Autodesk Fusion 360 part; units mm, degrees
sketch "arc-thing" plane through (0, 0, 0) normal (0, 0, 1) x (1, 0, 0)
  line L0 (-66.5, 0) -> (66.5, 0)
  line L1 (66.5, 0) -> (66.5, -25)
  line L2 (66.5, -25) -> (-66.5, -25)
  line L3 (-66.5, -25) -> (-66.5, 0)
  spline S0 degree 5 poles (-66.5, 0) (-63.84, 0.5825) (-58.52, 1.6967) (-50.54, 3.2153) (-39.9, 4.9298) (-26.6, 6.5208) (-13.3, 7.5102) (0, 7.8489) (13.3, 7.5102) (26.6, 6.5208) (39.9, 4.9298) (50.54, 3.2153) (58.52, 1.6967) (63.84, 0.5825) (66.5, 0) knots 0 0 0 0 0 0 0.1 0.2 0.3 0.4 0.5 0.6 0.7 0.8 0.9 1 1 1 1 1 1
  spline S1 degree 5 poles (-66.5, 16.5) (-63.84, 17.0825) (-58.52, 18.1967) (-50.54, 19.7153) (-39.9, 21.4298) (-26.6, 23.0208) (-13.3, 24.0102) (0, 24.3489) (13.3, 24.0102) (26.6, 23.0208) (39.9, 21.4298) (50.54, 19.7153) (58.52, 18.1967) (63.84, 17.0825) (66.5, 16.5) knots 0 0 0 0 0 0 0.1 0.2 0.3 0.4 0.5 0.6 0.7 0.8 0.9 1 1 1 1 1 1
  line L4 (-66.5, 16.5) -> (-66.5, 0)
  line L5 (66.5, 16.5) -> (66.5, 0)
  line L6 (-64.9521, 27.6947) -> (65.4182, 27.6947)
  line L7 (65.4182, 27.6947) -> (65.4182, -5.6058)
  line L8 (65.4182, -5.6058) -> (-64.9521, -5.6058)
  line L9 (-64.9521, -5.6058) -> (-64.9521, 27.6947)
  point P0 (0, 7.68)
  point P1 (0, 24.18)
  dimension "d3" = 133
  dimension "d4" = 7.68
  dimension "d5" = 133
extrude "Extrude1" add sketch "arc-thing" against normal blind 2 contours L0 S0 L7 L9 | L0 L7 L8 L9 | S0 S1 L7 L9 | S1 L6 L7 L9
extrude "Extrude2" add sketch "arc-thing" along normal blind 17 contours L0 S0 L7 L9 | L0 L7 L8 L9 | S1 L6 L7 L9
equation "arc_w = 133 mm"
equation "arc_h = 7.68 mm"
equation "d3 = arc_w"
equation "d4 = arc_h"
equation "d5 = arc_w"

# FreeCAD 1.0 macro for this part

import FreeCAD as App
import Part
import Sketcher

V = App.Vector
Q = App.Units.Quantity


def add_polygon(sketch, points):
    """Adds a closed chain of lines whose ends are joined by coincident constraints."""
    first, n = sketch.GeometryCount, len(points)
    for a, b in zip(points, points[1:] + points[:1]):
        sketch.addGeometry(Part.LineSegment(App.Vector(*a, 0), App.Vector(*b, 0)), False)
    for i in range(n):
        sketch.addConstraint(Sketcher.Constraint("Coincident", first + i, 2, first + (i + 1) % n, 1))

doc = App.newDocument("Part")
params = doc.addObject("Spreadsheet::Sheet", "Params")
for row, (alias, value) in enumerate([
    ("pad1_length", "2 mm"),
    ("pad2_length", "17 mm"),
], start=1):
    params.set(f"A{row}", alias)
    params.set(f"B{row}", "=" + value)
    params.setAlias(f"B{row}", alias)

body = doc.addObject("PartDesign::Body", "Body")

# Sketch on XY plane
sketch1 = body.newObject("Sketcher::SketchObject", "Sketch")
sketch1.AttachmentSupport = (doc.getObject("XY_Plane"), [""])
sketch1.MapMode = "FlatFace"
add_polygon(sketch1, [(-65, -6), (65, -6), (65, 28), (-65, 28)])  # lines 0-3
sketch1.addConstraint([
    Sketcher.Constraint("Horizontal", 0),
    Sketcher.Constraint("Vertical", 1),
    Sketcher.Constraint("Horizontal", 2),
    Sketcher.Constraint("Vertical", 3),
    Sketcher.Constraint("DistanceX", 0, 1, 0, 2, Q("130.3703 mm")),
    Sketcher.Constraint("DistanceY", 1, 1, 1, 2, Q("33.3005 mm")),
    Sketcher.Constraint("DistanceX", 2, 2, -1, 1, Q("64.952 mm")),
    Sketcher.Constraint("DistanceY", 0, 2, -1, 1, Q("5.6058 mm")),
])
pad1 = body.newObject("PartDesign::Pad", "Pad")
pad1.Profile = sketch1
pad1.setExpression("Length", "Params.pad1_length")
pad1.Reversed = True

# Sketch on XY plane
sketch2 = body.newObject("Sketcher::SketchObject", "Sketch001")
sketch2.AttachmentSupport = (doc.getObject("XY_Plane"), [""])
sketch2.MapMode = "FlatFace"
sketch2.addGeometry([
    Part.LineSegment(V(-64.9521, 0.335525, 0), V(-64.9521, -5.6058, 0)),  # 0
    Part.LineSegment(V(-64.9521, -5.6058, 0), V(65.4182, -5.6058, 0)),  # 1
    Part.LineSegment(V(65.4182, -5.6058, 0), V(65.4182, 0.235217, 0)),  # 2
    Part.BSplineCurve([V(-64.9521, 0.335525, 0), V(-62.60168, 0.839779, 0), V(-57.59126, 1.872388, 0), V(-49.92084, 3.314696, 0), V(-39.59042, 4.966833, 0), V(-26.6, 6.5208, 0), V(-13.3, 7.5102, 0), V(0, 7.8489, 0), V(13.3, 7.5102, 0), V(26.6, 6.5208, 0), V(39.68364, 4.955682, 0), V(50.10728, 3.284845, 0), V(57.87092, 1.819707, 0), V(62.97456, 0.762744, 0), V(65.4182, 0.235217, 0)], [6, 1, 1, 1, 1, 1, 1, 1, 1, 1, 6], [0.011638346, 0.1, 0.2, 0.3, 0.4, 0.5, 0.6, 0.7, 0.8, 0.9, 0.991866165], False, 5, [1, 1, 1, 1, 1, 1, 1, 1, 1, 1, 1, 1, 1, 1, 1], False),  # 3
    Part.LineSegment(V(-64.9521, 27.6947, 0), V(-64.9521, 16.835525, 0)),  # 4
    Part.BSplineCurve([V(-64.9521, 16.835525, 0), V(-62.60168, 17.339779, 0), V(-57.59126, 18.372388, 0), V(-49.92084, 19.814696, 0), V(-39.59042, 21.466833, 0), V(-26.6, 23.0208, 0), V(-13.3, 24.0102, 0), V(0, 24.3489, 0), V(13.3, 24.0102, 0), V(26.6, 23.0208, 0), V(39.68364, 21.455682, 0), V(50.10728, 19.784845, 0), V(57.87092, 18.319707, 0), V(62.97456, 17.262744, 0), V(65.4182, 16.735217, 0)], [6, 1, 1, 1, 1, 1, 1, 1, 1, 1, 6], [0.011638346, 0.1, 0.2, 0.3, 0.4, 0.5, 0.6, 0.7, 0.8, 0.9, 0.991866165], False, 5, [1, 1, 1, 1, 1, 1, 1, 1, 1, 1, 1, 1, 1, 1, 1], False),  # 5
    Part.LineSegment(V(65.4182, 16.735217, 0), V(65.4182, 27.6947, 0)),  # 6
    Part.LineSegment(V(65.4182, 27.6947, 0), V(-64.9521, 27.6947, 0)),  # 7
], False)
sketch2.addConstraint([
    Sketcher.Constraint("Block", 3),
    Sketcher.Constraint("Block", 5),
    Sketcher.Constraint("Coincident", 0, 2, 1, 1),
    Sketcher.Constraint("Coincident", 1, 2, 2, 1),
    Sketcher.Constraint("Coincident", 2, 2, 3, 2),
    Sketcher.Constraint("Coincident", 3, 1, 0, 1),
    Sketcher.Constraint("Coincident", 4, 2, 5, 1),
    Sketcher.Constraint("Coincident", 5, 2, 6, 1),
    Sketcher.Constraint("Coincident", 6, 2, 7, 1),
    Sketcher.Constraint("Coincident", 7, 2, 4, 1),
    Sketcher.Constraint("Vertical", 0),
    Sketcher.Constraint("Horizontal", 1),
    Sketcher.Constraint("Vertical", 2),
    Sketcher.Constraint("Vertical", 4),
    Sketcher.Constraint("Vertical", 6),
    Sketcher.Constraint("Horizontal", 7),
    Sketcher.Constraint("DistanceY", 2, 1, 2, 2, Q("5.841 mm")),
    Sketcher.Constraint("DistanceY", 4, 2, 4, 1, Q("10.8592 mm")),
])
pad2 = body.newObject("PartDesign::Pad", "Pad001")
pad2.Profile = sketch2
pad2.setExpression("Length", "Params.pad2_length")

doc.recompute()
